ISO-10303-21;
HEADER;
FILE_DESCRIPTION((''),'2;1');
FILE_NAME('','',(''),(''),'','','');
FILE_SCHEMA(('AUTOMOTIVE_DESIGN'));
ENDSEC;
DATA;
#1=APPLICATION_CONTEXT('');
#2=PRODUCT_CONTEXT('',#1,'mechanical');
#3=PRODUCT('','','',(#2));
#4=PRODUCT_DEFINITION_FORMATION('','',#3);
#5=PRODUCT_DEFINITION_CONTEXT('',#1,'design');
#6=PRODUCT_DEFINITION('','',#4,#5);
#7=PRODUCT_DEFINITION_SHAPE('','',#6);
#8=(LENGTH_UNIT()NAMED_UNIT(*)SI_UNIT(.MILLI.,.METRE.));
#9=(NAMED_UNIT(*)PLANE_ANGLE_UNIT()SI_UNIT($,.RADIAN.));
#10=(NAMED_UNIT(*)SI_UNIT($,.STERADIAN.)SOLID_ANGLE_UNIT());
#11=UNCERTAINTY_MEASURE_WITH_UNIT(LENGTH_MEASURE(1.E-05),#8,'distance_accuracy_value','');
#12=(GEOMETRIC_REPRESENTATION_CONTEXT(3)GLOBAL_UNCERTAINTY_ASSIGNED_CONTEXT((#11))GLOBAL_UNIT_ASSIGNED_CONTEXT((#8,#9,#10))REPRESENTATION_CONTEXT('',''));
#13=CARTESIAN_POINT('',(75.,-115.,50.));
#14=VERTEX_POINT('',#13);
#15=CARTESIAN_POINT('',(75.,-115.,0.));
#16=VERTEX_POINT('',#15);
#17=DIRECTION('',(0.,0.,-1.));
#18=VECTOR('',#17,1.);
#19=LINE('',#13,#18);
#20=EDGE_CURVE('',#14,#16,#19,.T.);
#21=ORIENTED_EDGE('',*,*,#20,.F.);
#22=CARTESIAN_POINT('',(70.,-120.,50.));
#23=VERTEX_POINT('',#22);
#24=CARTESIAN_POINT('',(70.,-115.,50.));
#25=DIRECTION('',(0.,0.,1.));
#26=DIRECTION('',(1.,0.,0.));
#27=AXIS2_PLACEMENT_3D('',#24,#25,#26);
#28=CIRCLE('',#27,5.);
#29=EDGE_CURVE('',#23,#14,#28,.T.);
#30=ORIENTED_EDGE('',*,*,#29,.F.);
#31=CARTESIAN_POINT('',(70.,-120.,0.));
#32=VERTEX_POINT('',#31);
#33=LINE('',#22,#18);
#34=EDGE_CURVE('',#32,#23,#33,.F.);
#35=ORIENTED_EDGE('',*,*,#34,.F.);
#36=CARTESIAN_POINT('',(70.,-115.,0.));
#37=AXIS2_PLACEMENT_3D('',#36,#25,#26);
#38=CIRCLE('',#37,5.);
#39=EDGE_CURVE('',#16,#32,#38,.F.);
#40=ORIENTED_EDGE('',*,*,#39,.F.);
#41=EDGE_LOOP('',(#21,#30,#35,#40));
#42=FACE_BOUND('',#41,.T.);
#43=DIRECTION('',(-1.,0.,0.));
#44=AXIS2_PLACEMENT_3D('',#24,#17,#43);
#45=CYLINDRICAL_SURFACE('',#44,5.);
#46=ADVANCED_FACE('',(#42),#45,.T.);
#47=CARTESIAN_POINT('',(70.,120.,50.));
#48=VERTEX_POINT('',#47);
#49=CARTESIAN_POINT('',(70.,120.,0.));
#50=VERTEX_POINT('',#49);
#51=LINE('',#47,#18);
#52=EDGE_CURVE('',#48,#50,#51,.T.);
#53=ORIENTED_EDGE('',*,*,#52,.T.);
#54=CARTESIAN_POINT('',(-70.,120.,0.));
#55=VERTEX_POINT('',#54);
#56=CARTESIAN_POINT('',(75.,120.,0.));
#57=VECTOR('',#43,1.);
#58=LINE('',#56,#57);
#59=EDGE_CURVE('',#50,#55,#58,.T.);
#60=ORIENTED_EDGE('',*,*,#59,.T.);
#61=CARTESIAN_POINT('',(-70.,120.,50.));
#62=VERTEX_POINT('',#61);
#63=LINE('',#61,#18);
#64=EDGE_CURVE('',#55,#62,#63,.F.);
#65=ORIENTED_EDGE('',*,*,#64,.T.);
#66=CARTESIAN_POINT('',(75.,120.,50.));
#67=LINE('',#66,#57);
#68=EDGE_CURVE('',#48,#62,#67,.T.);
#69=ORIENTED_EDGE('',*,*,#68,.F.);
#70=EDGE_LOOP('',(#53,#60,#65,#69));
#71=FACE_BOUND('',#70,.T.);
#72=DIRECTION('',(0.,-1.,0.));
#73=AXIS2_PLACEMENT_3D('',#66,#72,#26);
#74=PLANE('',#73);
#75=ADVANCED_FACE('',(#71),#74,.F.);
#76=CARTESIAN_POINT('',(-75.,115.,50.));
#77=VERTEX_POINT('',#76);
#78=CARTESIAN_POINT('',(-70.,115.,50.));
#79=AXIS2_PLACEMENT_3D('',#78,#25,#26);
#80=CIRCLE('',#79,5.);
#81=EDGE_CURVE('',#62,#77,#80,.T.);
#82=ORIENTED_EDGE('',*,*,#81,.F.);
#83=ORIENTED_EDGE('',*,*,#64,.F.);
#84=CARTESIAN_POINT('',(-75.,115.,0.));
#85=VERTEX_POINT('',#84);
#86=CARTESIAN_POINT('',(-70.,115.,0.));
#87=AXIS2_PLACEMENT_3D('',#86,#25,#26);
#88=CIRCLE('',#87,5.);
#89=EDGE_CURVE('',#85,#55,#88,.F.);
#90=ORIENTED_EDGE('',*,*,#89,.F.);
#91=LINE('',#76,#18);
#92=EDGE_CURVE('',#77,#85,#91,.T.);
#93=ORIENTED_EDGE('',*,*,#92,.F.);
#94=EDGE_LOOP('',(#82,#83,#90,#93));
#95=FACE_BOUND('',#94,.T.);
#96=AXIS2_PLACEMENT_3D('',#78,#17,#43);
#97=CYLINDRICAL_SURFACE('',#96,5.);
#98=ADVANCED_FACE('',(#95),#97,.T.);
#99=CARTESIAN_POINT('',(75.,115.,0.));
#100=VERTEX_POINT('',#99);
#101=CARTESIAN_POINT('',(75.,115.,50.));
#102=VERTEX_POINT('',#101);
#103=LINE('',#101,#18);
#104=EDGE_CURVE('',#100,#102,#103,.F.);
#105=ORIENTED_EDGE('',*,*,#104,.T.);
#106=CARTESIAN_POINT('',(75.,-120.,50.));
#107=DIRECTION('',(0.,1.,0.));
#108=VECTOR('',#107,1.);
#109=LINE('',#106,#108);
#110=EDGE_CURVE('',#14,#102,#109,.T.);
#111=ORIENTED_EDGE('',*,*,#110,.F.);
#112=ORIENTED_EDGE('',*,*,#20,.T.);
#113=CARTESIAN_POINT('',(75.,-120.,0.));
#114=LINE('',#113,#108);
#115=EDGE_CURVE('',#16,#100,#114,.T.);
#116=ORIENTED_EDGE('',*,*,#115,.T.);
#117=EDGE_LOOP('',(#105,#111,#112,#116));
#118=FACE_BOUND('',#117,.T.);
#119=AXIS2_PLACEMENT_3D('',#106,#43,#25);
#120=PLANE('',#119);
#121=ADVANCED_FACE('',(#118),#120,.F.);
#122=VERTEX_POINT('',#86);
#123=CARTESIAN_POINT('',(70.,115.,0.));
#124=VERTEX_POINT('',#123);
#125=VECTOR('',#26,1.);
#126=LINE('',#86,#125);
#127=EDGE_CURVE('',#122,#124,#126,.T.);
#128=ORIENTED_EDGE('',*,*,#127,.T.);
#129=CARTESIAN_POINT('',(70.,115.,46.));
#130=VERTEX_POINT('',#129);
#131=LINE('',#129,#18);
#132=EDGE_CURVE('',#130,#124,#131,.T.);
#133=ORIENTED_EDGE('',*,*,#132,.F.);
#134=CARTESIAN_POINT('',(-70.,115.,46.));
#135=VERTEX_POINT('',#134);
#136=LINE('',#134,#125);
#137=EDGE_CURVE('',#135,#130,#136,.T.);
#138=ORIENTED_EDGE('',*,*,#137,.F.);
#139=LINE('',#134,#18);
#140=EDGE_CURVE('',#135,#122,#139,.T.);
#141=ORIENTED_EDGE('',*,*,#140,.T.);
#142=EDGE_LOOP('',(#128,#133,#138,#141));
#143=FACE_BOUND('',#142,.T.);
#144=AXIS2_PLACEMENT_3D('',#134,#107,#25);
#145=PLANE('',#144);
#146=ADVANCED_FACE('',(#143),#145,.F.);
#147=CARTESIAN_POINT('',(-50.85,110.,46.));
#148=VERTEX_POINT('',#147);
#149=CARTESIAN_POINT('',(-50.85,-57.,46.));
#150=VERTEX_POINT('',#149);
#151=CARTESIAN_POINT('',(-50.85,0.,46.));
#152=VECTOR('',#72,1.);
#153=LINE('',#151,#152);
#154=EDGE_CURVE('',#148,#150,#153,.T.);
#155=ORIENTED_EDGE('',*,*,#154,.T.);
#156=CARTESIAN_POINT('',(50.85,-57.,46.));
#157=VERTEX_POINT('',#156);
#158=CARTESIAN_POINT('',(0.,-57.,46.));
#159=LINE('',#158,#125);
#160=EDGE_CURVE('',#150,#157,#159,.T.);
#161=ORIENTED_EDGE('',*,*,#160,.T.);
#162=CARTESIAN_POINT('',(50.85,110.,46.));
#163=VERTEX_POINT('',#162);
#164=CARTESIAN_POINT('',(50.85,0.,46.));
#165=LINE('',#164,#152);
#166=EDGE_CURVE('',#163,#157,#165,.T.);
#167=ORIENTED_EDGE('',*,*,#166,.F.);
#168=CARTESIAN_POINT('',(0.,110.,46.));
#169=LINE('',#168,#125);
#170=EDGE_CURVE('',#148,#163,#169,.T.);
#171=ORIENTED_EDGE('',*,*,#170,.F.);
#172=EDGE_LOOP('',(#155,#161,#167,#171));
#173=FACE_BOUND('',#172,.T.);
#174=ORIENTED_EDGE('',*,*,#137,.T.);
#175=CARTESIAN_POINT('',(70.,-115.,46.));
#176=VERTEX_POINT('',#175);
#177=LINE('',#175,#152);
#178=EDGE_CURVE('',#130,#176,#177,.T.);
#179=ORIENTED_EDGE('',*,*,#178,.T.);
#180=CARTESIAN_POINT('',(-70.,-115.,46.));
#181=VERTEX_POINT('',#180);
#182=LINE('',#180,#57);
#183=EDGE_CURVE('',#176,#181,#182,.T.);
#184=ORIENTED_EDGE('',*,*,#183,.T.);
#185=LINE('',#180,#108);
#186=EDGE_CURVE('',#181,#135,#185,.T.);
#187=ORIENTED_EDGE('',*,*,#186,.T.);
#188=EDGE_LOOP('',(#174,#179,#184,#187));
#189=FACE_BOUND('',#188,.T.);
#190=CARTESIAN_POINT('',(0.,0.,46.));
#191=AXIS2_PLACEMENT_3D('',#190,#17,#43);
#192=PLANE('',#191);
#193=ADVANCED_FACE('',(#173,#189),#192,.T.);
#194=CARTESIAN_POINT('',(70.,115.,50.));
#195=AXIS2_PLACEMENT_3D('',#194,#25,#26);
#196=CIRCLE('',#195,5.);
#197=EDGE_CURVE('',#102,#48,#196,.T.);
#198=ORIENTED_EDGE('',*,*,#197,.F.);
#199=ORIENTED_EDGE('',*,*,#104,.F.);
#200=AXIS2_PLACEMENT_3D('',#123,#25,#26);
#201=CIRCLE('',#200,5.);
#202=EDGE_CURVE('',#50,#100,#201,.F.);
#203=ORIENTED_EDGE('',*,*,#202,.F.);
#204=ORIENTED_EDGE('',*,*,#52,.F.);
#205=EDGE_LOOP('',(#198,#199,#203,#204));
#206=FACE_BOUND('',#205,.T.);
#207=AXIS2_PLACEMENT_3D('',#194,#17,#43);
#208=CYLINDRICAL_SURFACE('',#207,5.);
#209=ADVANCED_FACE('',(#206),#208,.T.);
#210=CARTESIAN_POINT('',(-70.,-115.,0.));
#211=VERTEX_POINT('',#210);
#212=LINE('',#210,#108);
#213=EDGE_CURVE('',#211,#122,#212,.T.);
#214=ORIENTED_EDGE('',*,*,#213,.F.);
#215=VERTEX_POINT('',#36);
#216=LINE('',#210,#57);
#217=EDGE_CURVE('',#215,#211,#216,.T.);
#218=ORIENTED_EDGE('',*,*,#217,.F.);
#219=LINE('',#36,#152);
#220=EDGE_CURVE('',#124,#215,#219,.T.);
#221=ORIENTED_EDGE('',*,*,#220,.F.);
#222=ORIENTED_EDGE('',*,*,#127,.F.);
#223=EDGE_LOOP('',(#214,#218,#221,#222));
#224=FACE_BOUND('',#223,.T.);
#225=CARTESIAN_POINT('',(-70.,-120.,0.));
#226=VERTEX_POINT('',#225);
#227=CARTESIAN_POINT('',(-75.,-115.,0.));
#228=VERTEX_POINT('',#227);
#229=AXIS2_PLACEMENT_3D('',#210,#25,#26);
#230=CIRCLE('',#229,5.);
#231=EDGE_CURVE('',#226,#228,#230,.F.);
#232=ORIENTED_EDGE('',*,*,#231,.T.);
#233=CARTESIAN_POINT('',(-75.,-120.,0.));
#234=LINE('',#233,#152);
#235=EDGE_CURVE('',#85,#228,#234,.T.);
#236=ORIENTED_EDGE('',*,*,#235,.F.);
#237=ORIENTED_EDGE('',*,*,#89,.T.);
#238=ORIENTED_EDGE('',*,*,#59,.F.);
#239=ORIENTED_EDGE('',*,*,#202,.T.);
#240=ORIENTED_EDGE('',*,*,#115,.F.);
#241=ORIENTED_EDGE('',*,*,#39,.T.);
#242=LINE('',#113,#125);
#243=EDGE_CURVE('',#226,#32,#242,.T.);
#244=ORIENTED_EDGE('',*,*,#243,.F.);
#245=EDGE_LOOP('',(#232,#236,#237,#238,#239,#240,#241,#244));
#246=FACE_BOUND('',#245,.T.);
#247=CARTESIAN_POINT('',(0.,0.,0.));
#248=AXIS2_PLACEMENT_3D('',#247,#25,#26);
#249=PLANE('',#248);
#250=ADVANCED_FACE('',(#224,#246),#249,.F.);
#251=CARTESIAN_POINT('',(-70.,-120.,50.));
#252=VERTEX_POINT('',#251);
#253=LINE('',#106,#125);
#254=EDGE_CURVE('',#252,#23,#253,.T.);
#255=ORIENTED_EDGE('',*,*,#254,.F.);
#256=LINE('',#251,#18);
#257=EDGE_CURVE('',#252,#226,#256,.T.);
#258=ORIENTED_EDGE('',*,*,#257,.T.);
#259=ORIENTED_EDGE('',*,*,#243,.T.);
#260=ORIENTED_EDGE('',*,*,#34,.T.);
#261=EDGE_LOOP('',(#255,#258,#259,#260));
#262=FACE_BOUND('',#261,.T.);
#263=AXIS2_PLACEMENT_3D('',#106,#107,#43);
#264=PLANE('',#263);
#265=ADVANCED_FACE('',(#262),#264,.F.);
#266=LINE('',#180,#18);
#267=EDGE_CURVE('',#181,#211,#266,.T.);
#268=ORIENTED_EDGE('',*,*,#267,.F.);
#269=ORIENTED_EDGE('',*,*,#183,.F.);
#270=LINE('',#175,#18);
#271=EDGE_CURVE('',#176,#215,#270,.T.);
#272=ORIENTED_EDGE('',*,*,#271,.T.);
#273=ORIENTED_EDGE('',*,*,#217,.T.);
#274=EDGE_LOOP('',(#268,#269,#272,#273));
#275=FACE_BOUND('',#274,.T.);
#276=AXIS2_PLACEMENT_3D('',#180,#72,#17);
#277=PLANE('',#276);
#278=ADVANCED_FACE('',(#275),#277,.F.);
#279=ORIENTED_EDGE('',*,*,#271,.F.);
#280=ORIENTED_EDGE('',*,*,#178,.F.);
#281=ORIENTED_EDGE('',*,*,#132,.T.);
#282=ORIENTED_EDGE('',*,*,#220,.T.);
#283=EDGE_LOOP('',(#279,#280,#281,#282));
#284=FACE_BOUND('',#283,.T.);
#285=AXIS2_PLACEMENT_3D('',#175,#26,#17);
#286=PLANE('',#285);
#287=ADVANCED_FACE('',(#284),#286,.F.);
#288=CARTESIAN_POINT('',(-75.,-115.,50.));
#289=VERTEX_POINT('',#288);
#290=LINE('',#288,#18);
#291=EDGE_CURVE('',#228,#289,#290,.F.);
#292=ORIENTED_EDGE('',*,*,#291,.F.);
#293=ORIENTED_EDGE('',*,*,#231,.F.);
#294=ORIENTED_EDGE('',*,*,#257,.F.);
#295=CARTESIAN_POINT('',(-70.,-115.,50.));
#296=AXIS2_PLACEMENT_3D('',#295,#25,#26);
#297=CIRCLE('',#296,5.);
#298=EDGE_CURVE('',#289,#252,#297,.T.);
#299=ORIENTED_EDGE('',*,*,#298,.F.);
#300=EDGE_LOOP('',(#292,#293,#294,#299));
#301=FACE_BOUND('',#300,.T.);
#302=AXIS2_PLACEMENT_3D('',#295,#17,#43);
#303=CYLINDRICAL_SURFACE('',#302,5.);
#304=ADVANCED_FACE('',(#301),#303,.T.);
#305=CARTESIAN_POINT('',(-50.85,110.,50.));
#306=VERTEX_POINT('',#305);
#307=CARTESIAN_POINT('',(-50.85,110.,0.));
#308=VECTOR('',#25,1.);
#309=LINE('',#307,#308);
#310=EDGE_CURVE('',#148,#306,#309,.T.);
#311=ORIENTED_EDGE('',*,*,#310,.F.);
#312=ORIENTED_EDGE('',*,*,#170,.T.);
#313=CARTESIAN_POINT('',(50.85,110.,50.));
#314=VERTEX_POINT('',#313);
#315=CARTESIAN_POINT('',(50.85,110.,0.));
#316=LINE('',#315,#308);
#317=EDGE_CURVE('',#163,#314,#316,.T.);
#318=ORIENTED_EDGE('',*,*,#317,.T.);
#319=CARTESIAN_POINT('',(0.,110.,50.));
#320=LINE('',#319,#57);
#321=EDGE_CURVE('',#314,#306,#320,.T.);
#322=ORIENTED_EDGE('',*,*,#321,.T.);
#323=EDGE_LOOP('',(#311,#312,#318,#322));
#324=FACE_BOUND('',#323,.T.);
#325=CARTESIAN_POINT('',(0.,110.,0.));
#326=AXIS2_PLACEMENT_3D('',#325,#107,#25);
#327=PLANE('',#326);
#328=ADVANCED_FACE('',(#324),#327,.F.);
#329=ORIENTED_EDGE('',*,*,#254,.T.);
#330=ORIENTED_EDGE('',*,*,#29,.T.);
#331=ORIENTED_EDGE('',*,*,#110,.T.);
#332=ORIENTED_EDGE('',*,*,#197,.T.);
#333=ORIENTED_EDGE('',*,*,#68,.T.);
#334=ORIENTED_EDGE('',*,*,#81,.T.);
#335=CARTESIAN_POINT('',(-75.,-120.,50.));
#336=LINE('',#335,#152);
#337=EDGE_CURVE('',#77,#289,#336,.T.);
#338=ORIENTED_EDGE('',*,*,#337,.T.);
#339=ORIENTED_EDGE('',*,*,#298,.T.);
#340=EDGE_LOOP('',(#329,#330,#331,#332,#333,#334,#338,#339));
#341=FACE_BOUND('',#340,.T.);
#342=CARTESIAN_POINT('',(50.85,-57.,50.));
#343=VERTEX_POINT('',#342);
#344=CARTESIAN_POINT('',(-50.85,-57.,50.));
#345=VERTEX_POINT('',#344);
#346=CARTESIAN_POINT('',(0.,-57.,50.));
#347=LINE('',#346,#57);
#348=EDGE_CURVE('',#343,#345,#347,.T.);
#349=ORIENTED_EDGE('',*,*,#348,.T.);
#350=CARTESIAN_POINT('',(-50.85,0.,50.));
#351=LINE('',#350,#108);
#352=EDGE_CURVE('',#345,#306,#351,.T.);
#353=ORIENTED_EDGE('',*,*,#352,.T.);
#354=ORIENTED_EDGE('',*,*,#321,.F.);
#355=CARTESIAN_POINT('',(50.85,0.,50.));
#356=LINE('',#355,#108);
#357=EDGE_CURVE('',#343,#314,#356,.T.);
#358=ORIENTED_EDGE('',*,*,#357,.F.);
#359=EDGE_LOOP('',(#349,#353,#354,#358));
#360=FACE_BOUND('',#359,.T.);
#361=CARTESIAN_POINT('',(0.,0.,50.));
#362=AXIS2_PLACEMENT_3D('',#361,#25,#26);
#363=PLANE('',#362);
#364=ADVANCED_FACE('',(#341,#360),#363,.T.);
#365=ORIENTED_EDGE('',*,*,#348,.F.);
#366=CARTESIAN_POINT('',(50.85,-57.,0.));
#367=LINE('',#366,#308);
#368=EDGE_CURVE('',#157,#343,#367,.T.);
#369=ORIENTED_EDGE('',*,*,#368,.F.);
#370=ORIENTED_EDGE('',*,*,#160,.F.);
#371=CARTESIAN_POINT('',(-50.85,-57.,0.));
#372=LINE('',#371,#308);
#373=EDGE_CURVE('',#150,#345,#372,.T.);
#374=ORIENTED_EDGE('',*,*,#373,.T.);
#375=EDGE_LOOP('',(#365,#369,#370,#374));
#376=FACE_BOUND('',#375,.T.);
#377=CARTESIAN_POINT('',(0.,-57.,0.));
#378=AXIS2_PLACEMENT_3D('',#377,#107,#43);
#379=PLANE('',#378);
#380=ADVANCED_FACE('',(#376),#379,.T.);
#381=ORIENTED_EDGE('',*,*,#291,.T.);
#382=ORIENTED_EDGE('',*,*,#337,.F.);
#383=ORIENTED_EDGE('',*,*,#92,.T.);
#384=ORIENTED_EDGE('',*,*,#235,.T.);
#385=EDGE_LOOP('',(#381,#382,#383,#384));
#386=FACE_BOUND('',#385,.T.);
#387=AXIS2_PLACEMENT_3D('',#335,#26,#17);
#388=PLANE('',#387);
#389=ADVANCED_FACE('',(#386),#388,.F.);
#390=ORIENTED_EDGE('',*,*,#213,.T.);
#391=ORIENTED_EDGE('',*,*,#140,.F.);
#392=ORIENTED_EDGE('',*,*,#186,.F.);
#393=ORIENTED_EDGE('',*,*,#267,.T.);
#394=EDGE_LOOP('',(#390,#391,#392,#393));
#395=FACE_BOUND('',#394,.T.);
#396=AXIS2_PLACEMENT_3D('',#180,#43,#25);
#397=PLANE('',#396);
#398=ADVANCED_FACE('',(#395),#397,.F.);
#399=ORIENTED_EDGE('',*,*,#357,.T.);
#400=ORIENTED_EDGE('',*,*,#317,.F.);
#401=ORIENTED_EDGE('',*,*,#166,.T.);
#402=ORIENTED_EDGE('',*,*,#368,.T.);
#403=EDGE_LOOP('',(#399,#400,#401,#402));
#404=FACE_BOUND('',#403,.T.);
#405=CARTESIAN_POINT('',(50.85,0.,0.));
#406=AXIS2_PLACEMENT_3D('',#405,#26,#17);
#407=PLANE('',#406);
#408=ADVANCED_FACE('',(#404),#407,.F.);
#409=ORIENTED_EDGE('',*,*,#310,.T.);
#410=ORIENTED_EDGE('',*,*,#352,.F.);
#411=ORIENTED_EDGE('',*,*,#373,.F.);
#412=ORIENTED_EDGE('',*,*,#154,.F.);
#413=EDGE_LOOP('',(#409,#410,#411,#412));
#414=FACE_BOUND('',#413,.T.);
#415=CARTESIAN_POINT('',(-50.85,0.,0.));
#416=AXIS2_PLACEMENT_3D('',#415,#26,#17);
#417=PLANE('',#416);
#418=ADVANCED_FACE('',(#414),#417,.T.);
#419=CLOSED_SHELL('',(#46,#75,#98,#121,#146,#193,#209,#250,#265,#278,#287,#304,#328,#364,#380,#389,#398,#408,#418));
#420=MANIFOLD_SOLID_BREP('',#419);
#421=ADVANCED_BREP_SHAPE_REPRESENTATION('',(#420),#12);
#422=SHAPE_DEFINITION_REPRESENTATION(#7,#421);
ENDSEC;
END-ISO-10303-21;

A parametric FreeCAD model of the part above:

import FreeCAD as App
import Part
import Sketcher


def edges_at(feature, points):
    """Names of the edges that pass closest to the given points."""
    edges = feature.Shape.Edges
    near = lambda p: min(range(len(edges)), key=lambda i: edges[i].distToShape(Part.Vertex(*p))[0])
    return sorted({f"Edge{near(p) + 1}" for p in points})

doc = App.newDocument("Part")
body = doc.addObject("PartDesign::Body", "Body")

# Sketch on XY plane
sketch1 = doc.addObject("Sketcher::SketchObject", "Sketch")
body.addObject(sketch1)
sketch1.AttachmentSupport = (doc.XY_Plane, [""])
sketch1.MapMode = "FlatFace"
sketch1.addGeometry(Part.LineSegment(App.Vector(-75, 120, 0), App.Vector(-75, -120, 0)), False)
sketch1.addGeometry(Part.LineSegment(App.Vector(-75, -120, 0), App.Vector(75, -120, 0)), False)
sketch1.addGeometry(Part.LineSegment(App.Vector(75, -120, 0), App.Vector(75, 120, 0)), False)
sketch1.addGeometry(Part.LineSegment(App.Vector(75, 120, 0), App.Vector(-75, 120, 0)), False)
sketch1.addConstraint(Sketcher.Constraint("Coincident", 0, 2, 1, 1))
sketch1.addConstraint(Sketcher.Constraint("Coincident", 1, 2, 2, 1))
sketch1.addConstraint(Sketcher.Constraint("Coincident", 2, 2, 3, 1))
sketch1.addConstraint(Sketcher.Constraint("Coincident", 3, 2, 0, 1))
sketch1.addConstraint(Sketcher.Constraint("Vertical", 0))
sketch1.addConstraint(Sketcher.Constraint("Horizontal", 1))
sketch1.addConstraint(Sketcher.Constraint("Vertical", 2))
sketch1.addConstraint(Sketcher.Constraint("Horizontal", 3))
sketch1.addConstraint(Sketcher.Constraint("Symmetric", 0, 2, 2, 2, -1, 1))
sketch1.addConstraint(Sketcher.Constraint("DistanceX", 1, 1, 1, 2, 150.0))
sketch1.addConstraint(Sketcher.Constraint("DistanceY", 0, 2, 0, 1, 240.0))
pad1 = doc.addObject("PartDesign::Pad", "Pad")
body.addObject(pad1)
pad1.Profile = sketch1
pad1.Length = 50

# Sketch on XY plane
sketch2 = doc.addObject("Sketcher::SketchObject", "Sketch001")
body.addObject(sketch2)
sketch2.AttachmentSupport = (doc.XY_Plane, [""])
sketch2.MapMode = "FlatFace"
sketch2.addGeometry(Part.LineSegment(App.Vector(70, 115, 0), App.Vector(70, -115, 0)), False)
sketch2.addGeometry(Part.LineSegment(App.Vector(70, -115, 0), App.Vector(-70, -115, 0)), False)
sketch2.addGeometry(Part.LineSegment(App.Vector(-70, -115, 0), App.Vector(-70, 115, 0)), False)
sketch2.addGeometry(Part.LineSegment(App.Vector(-70, 115, 0), App.Vector(70, 115, 0)), False)
sketch2.addConstraint(Sketcher.Constraint("Coincident", 0, 2, 1, 1))
sketch2.addConstraint(Sketcher.Constraint("Coincident", 1, 2, 2, 1))
sketch2.addConstraint(Sketcher.Constraint("Coincident", 2, 2, 3, 1))
sketch2.addConstraint(Sketcher.Constraint("Coincident", 3, 2, 0, 1))
sketch2.addConstraint(Sketcher.Constraint("Vertical", 0))
sketch2.addConstraint(Sketcher.Constraint("Horizontal", 1))
sketch2.addConstraint(Sketcher.Constraint("Vertical", 2))
sketch2.addConstraint(Sketcher.Constraint("Horizontal", 3))
sketch2.addConstraint(Sketcher.Constraint("Symmetric", 0, 2, 2, 2, -1, 1))
sketch2.addConstraint(Sketcher.Constraint("DistanceX", 1, 2, 1, 1, 140.0))
sketch2.addConstraint(Sketcher.Constraint("DistanceY", 0, 2, 0, 1, 230.0))
pocket1 = doc.addObject("PartDesign::Pocket", "Pocket")
body.addObject(pocket1)
pocket1.Profile = sketch2
pocket1.Length = 46
pocket1.Reversed = True

# Sketch on XY plane
sketch3 = doc.addObject("Sketcher::SketchObject", "Sketch002")
body.addObject(sketch3)
sketch3.AttachmentSupport = (doc.XY_Plane, [""])
sketch3.MapMode = "FlatFace"
sketch3.AttachmentOffset = App.Placement(App.Vector(0, 0, 50), App.Rotation())
sketch3.addGeometry(Part.LineSegment(App.Vector(-51, 110, 0), App.Vector(-51, -57, 0)), False)
sketch3.addGeometry(Part.LineSegment(App.Vector(-51, -57, 0), App.Vector(51, -57, 0)), False)
sketch3.addGeometry(Part.LineSegment(App.Vector(51, -57, 0), App.Vector(51, 110, 0)), False)
sketch3.addGeometry(Part.LineSegment(App.Vector(51, 110, 0), App.Vector(-51, 110, 0)), False)
sketch3.addConstraint(Sketcher.Constraint("Coincident", 0, 2, 1, 1))
sketch3.addConstraint(Sketcher.Constraint("Coincident", 1, 2, 2, 1))
sketch3.addConstraint(Sketcher.Constraint("Coincident", 2, 2, 3, 1))
sketch3.addConstraint(Sketcher.Constraint("Coincident", 3, 2, 0, 1))
sketch3.addConstraint(Sketcher.Constraint("Vertical", 0))
sketch3.addConstraint(Sketcher.Constraint("Horizontal", 1))
sketch3.addConstraint(Sketcher.Constraint("Vertical", 2))
sketch3.addConstraint(Sketcher.Constraint("Horizontal", 3))
sketch3.addConstraint(Sketcher.Constraint("DistanceY", 0, 2, 0, 1, 167.0))
sketch3.addConstraint(Sketcher.Constraint("DistanceX", 1, 1, 1, 2, 101.7))
sketch3.addConstraint(Sketcher.Constraint("DistanceY", 0, 2, -1, 1, 57.0))
sketch3.addConstraint(Sketcher.Constraint("DistanceX", 0, 2, -1, 1, 50.85))
pocket2 = doc.addObject("PartDesign::Pocket", "Pocket001")
body.addObject(pocket2)
pocket2.Profile = sketch3
pocket2.Type = "ThroughAll"
doc.recompute()

fillet = doc.addObject("PartDesign::Fillet", "Fillet")
body.addObject(fillet)
fillet.Base = (pocket2, edges_at(pocket2, [
    (-75, 120, 25),
    (75, 120, 25),
    (75, -120, 25),
    (-75, -120, 25),
]))
fillet.Radius = 5

doc.recompute()
